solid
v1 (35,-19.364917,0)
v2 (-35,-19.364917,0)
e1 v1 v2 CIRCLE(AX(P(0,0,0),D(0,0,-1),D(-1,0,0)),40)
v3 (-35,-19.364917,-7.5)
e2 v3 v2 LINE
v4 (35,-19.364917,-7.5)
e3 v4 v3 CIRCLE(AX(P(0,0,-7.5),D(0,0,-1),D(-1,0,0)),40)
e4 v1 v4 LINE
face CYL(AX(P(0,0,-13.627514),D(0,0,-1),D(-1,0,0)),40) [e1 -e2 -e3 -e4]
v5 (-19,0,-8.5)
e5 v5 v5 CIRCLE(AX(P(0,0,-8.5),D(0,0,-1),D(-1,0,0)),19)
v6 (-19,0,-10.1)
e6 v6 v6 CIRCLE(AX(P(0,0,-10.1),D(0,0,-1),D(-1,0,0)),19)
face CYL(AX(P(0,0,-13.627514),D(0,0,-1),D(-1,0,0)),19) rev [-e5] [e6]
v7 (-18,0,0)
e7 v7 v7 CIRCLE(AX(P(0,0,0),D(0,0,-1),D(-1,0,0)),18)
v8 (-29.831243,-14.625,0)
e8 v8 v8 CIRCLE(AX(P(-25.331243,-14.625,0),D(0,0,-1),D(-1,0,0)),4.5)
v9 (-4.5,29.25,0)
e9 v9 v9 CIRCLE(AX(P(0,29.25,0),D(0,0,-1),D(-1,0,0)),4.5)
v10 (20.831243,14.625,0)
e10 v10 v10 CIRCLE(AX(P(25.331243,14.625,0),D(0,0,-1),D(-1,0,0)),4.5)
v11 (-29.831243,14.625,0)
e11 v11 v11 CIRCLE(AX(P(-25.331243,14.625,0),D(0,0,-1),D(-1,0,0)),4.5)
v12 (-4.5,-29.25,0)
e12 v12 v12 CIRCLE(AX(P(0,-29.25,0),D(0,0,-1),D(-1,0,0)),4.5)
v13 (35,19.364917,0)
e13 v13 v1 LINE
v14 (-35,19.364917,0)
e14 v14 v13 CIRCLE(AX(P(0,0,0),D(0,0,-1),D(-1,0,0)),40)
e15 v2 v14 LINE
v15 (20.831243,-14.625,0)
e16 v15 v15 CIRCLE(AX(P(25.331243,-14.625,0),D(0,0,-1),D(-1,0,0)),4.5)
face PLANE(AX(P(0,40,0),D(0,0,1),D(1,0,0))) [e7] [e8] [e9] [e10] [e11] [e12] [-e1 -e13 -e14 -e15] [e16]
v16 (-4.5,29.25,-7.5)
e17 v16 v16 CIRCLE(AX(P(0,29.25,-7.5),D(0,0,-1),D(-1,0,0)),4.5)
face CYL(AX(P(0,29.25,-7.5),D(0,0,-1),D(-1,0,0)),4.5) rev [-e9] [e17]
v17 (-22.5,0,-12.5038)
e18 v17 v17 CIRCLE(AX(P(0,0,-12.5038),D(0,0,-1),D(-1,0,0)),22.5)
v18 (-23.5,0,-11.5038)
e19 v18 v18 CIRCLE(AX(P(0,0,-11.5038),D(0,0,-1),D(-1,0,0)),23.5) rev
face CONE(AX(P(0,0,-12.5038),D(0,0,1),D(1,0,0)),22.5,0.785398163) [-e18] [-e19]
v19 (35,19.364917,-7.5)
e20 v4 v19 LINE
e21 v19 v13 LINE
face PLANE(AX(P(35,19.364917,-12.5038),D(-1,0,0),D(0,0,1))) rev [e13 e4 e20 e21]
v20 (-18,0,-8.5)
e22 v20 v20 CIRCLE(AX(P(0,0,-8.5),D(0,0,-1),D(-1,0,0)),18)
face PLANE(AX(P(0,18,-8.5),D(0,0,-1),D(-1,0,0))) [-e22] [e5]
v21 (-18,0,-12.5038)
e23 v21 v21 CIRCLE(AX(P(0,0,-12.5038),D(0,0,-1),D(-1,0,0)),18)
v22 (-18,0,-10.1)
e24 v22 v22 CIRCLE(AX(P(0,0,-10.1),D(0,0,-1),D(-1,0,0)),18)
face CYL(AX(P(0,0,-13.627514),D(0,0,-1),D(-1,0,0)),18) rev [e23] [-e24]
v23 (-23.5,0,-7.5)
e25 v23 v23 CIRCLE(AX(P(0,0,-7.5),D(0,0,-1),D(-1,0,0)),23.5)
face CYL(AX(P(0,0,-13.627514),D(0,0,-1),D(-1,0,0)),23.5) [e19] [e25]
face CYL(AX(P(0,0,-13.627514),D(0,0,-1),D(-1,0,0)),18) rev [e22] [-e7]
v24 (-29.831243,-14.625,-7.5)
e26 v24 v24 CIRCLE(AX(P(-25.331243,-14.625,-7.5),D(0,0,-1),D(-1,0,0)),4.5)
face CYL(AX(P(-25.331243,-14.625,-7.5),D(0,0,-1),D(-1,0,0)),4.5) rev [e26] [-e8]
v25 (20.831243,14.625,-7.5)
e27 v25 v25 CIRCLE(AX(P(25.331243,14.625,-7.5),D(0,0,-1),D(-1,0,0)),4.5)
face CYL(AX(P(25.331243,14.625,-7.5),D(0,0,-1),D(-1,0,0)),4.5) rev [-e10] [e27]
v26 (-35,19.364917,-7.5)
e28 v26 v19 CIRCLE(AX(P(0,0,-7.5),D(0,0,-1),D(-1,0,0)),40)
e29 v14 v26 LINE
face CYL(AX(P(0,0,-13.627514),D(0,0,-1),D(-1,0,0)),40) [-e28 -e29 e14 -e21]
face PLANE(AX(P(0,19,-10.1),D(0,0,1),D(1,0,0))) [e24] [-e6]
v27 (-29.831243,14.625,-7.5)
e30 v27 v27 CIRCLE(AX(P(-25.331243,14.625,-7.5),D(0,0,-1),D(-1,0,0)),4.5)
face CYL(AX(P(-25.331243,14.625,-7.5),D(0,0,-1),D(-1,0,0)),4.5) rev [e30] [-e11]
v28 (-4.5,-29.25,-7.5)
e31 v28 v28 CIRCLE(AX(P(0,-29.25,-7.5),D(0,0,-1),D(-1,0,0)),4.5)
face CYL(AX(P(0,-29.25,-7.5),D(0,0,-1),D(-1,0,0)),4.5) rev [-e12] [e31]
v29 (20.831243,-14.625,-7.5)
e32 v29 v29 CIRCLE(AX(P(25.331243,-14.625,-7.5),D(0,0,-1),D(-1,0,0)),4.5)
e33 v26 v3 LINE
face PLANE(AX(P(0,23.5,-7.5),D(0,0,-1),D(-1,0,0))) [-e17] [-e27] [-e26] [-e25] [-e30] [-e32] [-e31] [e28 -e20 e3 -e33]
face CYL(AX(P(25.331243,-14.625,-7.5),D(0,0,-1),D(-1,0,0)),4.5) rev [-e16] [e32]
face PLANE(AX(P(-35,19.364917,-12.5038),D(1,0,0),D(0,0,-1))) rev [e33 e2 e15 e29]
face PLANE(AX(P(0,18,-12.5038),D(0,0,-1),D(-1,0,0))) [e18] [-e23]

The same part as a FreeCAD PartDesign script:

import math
import FreeCAD as App
import Part
import Sketcher
Q = App.Units.Quantity


def edges_at(feature, points):
    """Names of the edges that pass closest to the given points."""
    edges = feature.Shape.Edges
    near = lambda p: min(range(len(edges)), key=lambda i: edges[i].distToShape(Part.Vertex(*p))[0])
    return sorted({f"Edge{near(p) + 1}" for p in points})


def add_polygon(sketch, points):
    """Adds a closed chain of lines whose ends are joined by coincident constraints."""
    first, n = sketch.GeometryCount, len(points)
    for a, b in zip(points, points[1:] + points[:1]):
        sketch.addGeometry(Part.LineSegment(App.Vector(*a, 0), App.Vector(*b, 0)), False)
    for i in range(n):
        sketch.addConstraint(Sketcher.Constraint("Coincident", first + i, 2, first + (i + 1) % n, 1))

doc = App.newDocument("Part")
params = doc.addObject("Spreadsheet::Sheet", "Params")
for row, (alias, value) in enumerate([
    ("sketch1_width", "1 mm"),
    ("sketch1_width2", "22 mm"),
    ("sketch1_width3", "5.5 mm"),
    ("sketch1_height", "8.5 mm"),
    ("sketch1_height2", "1.6 mm"),
    ("revolution_angle", "360 deg"),
    ("sketch2_diameter", "9 mm"),
    ("hole_diameter", "9 mm"),
    ("chamfer_size", "1 mm"),
    ("sketch3_radius", "40 mm"),
], start=1):
    params.set(f"A{row}", alias)
    params.set(f"B{row}", "=" + value)
    params.setAlias(f"B{row}", alias)

body = doc.addObject("PartDesign::Body", "Body")

# Sketch on YZ plane
sketch1 = body.newObject("Sketcher::SketchObject", "Sketch")
sketch1.AttachmentSupport = (doc.getObject("YZ_Plane"), [""])
sketch1.MapMode = "FlatFace"
add_polygon(sketch1, [(18, 0), (18, -8.5), (19, -8.5), (19, -10.1), (18, -10.1), (18, -12.5), (23.5, -12.5), (23.5, -7.5), (40, -7.5), (40, 0)])  # lines 0-9
sketch1.addConstraint([
    Sketcher.Constraint("Vertical", 0),
    Sketcher.Constraint("Horizontal", 1),
    Sketcher.Constraint("Vertical", 2),
    Sketcher.Constraint("Horizontal", 3),
    Sketcher.Constraint("Vertical", 4),
    Sketcher.Constraint("Horizontal", 5),
    Sketcher.Constraint("Vertical", 6),
    Sketcher.Constraint("Horizontal", 7),
    Sketcher.Constraint("Vertical", 8),
    Sketcher.Constraint("Horizontal", 9),
    Sketcher.Constraint("PointOnObject", 8, 2, -1),
    Sketcher.Constraint("Vertical", 0, 2, 3, 2),
    Sketcher.Constraint("DistanceX", 1, 1, 1, 2, Q("1 mm")),
    Sketcher.Constraint("DistanceX", 9, 2, 9, 1, Q("22 mm")),
    Sketcher.Constraint("DistanceX", 5, 1, 5, 2, Q("5.5 mm")),
    Sketcher.Constraint("DistanceY", 0, 2, 0, 1, Q("8.5 mm")),
    Sketcher.Constraint("DistanceY", 2, 2, 2, 1, Q("1.6 mm")),
    Sketcher.Constraint("DistanceY", 8, 1, 8, 2, Q("7.5 mm")),
    Sketcher.Constraint("DistanceX", -1, 1, 0, 2, Q("18 mm")),
    Sketcher.Constraint("DistanceY", 4, 2, 4, 1, Q("2.4038 mm")),
])
sketch1.setExpression("Constraints[22]", "Params.sketch1_width")
sketch1.setExpression("Constraints[23]", "Params.sketch1_width2")
sketch1.setExpression("Constraints[24]", "Params.sketch1_width3")
sketch1.setExpression("Constraints[25]", "Params.sketch1_height")
sketch1.setExpression("Constraints[26]", "Params.sketch1_height2")
revolution = body.newObject("PartDesign::Revolution", "Revolution")
revolution.Profile = sketch1
revolution.ReferenceAxis = (sketch1, ["V_Axis"])
revolution.setExpression("Angle", "Params.revolution_angle")

# Sketch on XY plane
sketch2 = body.newObject("Sketcher::SketchObject", "Sketch001")
sketch2.AttachmentSupport = (doc.getObject("XY_Plane"), [""])
sketch2.MapMode = "FlatFace"
sketch2.AttachmentOffset = App.Placement(App.Vector(0, 0, -7.5), App.Rotation())
sketch2.addGeometry(Part.Circle(App.Vector(0, 29.2, 0), App.Vector(0, 0, 1), 4.5), False)
sketch2.addConstraint([
    Sketcher.Constraint("PointOnObject", 0, 3, -2),
    Sketcher.Constraint("Diameter", 0, Q("9 mm")),
    Sketcher.Constraint("DistanceY", -1, 1, 0, 3, Q("29.25 mm")),
])
sketch2.setExpression("Constraints[1]", "Params.sketch2_diameter")
doc.recompute()
hole = body.newObject("PartDesign::Hole", "Hole")
hole.Profile = sketch2
hole.ThreadType = "None"
hole.setExpression("Diameter", "Params.hole_diameter")
hole.DepthType = "ThroughAll"
hole.Reversed = True
doc.recompute()

polarpattern = body.newObject("PartDesign::PolarPattern", "PolarPattern")
polarpattern.Originals = [hole]
polarpattern.Axis = (doc.getObject("Z_Axis"), [""])
polarpattern.Angle = 360
polarpattern.Occurrences = 6
body.Tip = polarpattern
doc.recompute()

chamfer = body.newObject("PartDesign::Chamfer", "Chamfer")
chamfer.Base = (polarpattern, edges_at(polarpattern, [(23.5, 0, -12.504)]))
chamfer.setExpression("Size", "Params.chamfer_size")

# Sketch on XY plane
sketch3 = body.newObject("Sketcher::SketchObject", "Sketch002")
sketch3.AttachmentSupport = (doc.getObject("XY_Plane"), [""])
sketch3.MapMode = "FlatFace"
sketch3.addGeometry([
    Part.LineSegment(App.Vector(-35, -19, 0), App.Vector(-35, 19, 0)),
    Part.ArcOfCircle(Part.Circle(App.Vector(0, 0, 0), App.Vector(0, 0, 1), 40), math.radians(151), math.radians(209)),
    Part.LineSegment(App.Vector(35, 19, 0), App.Vector(35, -19, 0)),
    Part.ArcOfCircle(Part.Circle(App.Vector(0, 0, 0), App.Vector(0, 0, 1), 40), math.radians(-29), math.radians(29)),
], False)
sketch3.addConstraint([
    Sketcher.Constraint("Coincident", 0, 1, 1, 2),
    Sketcher.Constraint("Coincident", 1, 1, 0, 2),
    Sketcher.Constraint("Coincident", 2, 1, 3, 2),
    Sketcher.Constraint("Coincident", 3, 1, 2, 2),
    Sketcher.Constraint("Vertical", 0),
    Sketcher.Constraint("Vertical", 2),
    Sketcher.Constraint("Coincident", 1, 3, -1, 1),
    Sketcher.Constraint("Coincident", 3, 3, -1, 1),
    Sketcher.Constraint("Equal", 1, 3),
    Sketcher.Constraint("Horizontal", 1, 1, 2, 1),
    Sketcher.Constraint("Radius", 1, Q("40 mm")),
    Sketcher.Constraint("DistanceX", 0, 1, -1, 1, Q("35 mm")),
])
sketch3.setExpression("Constraints[10]", "Params.sketch3_radius")
pocket1 = body.newObject("PartDesign::Pocket", "Pocket")
pocket1.Profile = sketch3
pocket1.Type = "ThroughAll"

doc.recompute()
